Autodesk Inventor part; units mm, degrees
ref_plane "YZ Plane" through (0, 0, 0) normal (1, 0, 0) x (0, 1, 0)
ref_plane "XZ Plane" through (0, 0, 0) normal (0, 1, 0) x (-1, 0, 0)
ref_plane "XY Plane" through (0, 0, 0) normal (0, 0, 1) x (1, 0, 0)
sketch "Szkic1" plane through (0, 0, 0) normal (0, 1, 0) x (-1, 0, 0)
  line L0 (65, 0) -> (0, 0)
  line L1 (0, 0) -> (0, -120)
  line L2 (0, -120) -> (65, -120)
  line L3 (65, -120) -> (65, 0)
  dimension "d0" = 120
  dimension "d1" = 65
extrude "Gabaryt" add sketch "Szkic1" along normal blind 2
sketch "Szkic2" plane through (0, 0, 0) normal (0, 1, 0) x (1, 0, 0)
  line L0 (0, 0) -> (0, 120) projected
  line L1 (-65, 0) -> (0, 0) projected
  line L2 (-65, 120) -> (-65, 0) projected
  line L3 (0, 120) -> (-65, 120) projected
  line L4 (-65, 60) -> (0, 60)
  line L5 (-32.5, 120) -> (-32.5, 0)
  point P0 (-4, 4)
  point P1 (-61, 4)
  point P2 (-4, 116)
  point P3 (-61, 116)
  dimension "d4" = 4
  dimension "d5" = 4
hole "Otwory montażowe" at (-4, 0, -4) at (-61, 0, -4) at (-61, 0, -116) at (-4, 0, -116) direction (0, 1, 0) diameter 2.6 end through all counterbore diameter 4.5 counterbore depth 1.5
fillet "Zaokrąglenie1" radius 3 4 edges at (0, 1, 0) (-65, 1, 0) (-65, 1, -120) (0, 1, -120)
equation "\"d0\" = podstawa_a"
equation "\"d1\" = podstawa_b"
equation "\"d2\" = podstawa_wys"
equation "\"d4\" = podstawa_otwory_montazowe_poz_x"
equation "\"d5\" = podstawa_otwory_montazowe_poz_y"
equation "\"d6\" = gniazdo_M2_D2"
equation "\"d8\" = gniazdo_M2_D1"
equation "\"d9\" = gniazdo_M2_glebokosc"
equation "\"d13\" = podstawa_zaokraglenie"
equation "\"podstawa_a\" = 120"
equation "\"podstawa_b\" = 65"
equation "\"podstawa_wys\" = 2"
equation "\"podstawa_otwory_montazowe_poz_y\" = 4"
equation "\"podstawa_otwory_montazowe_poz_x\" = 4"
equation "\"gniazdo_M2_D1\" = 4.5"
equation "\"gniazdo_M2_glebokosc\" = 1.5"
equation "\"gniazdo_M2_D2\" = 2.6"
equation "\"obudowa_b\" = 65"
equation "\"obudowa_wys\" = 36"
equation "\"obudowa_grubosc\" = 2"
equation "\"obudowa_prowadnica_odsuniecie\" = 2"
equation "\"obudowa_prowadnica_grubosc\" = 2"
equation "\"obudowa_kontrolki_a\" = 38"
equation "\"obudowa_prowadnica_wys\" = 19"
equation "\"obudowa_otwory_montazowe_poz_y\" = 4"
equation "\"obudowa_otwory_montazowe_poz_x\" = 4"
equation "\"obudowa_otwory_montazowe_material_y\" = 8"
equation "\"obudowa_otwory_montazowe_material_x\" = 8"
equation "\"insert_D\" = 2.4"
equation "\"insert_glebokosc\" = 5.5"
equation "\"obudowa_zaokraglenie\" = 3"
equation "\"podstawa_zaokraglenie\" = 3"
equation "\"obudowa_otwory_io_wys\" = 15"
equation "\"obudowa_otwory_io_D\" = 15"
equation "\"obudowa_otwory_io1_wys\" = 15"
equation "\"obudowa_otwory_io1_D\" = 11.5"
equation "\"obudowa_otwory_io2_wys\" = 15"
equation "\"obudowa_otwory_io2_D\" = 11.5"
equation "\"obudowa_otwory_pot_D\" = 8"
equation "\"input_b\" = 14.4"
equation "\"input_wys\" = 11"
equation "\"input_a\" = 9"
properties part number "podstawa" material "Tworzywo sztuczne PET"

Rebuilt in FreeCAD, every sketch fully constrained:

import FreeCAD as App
import Part
import Sketcher
from FreeCAD import Vector


def edges_at(feature, points):
    """Names of the edges that pass closest to the given points."""
    edges = feature.Shape.Edges
    near = lambda p: min(range(len(edges)), key=lambda i: edges[i].distToShape(Part.Vertex(*p))[0])
    return sorted({f"Edge{near(p) + 1}" for p in points})


def add_polygon(sketch, points):
    """Adds a closed chain of lines whose ends are joined by coincident constraints."""
    first, n = sketch.GeometryCount, len(points)
    for a, b in zip(points, points[1:] + points[:1]):
        sketch.addGeometry(Part.LineSegment(App.Vector(*a, 0), App.Vector(*b, 0)), False)
    for i in range(n):
        sketch.addConstraint(Sketcher.Constraint("Coincident", first + i, 2, first + (i + 1) % n, 1))

doc = App.newDocument("Part")
body = doc.addObject("PartDesign::Body", "Body")

sketch1 = body.newObject("Sketcher::SketchObject", "Sketch")
sketch1.AttachmentSupport = (doc.getObject("XZ_Plane"), [""])
sketch1.MapMode = "FlatFace"
add_polygon(sketch1, [(-65, -120), (-65, 0), (0, 0), (0, -120)])
sketch1.addConstraint([
    Sketcher.Constraint("Vertical", 0),
    Sketcher.Constraint("Horizontal", 1),
    Sketcher.Constraint("Vertical", 2),
    Sketcher.Constraint("Horizontal", 3),
    Sketcher.Constraint("Coincident", 1, 2, -1, 1),
    Sketcher.Constraint("DistanceX", 1, 1, 1, 2, 65.0),
    Sketcher.Constraint("DistanceY", 0, 1, 0, 2, 120.0),
])
pad1 = body.newObject("PartDesign::Pad", "Pad")
pad1.Profile = sketch1
pad1.Length = 2
pad1.Reversed = True

sketch2 = body.newObject("Sketcher::SketchObject", "Sketch001")
sketch2.AttachmentSupport = (doc.getObject("XZ_Plane"), [""])
sketch2.MapMode = "FlatFace"
sketch2.addGeometry([
    Part.Circle(Vector(-4, -4, 0), Vector(0, 0, 1), 1.3),
    Part.Circle(Vector(-61, -4, 0), Vector(0, 0, 1), 1.3),
    Part.Circle(Vector(-61, -116, 0), Vector(0, 0, 1), 1.3),
    Part.Circle(Vector(-4, -116, 0), Vector(0, 0, 1), 1.3),
], False)
sketch2.addConstraint([
    Sketcher.Constraint("Equal", 0, 1),
    Sketcher.Constraint("Equal", 1, 2),
    Sketcher.Constraint("Equal", 2, 3),
    Sketcher.Constraint("Horizontal", 0, 3, 1, 3),
    Sketcher.Constraint("Horizontal", 2, 3, 3, 3),
    Sketcher.Constraint("Vertical", 1, 3, 2, 3),
    Sketcher.Constraint("Vertical", 0, 3, 3, 3),
    Sketcher.Constraint("Diameter", 0, 2.6),
    Sketcher.Constraint("DistanceX", 0, 3, -1, 1, 4.0),
    Sketcher.Constraint("DistanceY", 0, 3, -1, 1, 4.0),
    Sketcher.Constraint("DistanceX", 1, 3, -1, 1, 61.0),
    Sketcher.Constraint("DistanceY", 2, 3, -1, 1, 116.0),
])
doc.recompute()
hole = body.newObject("PartDesign::Hole", "Hole")
hole.Profile = sketch2
hole.ThreadType = "None"
hole.Diameter = 2.6
hole.DepthType = "ThroughAll"
hole.HoleCutType = "Counterbore"
hole.HoleCutDiameter = 4.5
hole.HoleCutDepth = 1.5
doc.recompute()

fillet = body.newObject("PartDesign::Fillet", "Fillet")
fillet.Base = (hole, edges_at(hole, [
    (0, 1, 0),
    (-65, 1, 0),
    (-65, 1, -120),
    (0, 1, -120),
]))
fillet.Radius = 3

doc.recompute()
